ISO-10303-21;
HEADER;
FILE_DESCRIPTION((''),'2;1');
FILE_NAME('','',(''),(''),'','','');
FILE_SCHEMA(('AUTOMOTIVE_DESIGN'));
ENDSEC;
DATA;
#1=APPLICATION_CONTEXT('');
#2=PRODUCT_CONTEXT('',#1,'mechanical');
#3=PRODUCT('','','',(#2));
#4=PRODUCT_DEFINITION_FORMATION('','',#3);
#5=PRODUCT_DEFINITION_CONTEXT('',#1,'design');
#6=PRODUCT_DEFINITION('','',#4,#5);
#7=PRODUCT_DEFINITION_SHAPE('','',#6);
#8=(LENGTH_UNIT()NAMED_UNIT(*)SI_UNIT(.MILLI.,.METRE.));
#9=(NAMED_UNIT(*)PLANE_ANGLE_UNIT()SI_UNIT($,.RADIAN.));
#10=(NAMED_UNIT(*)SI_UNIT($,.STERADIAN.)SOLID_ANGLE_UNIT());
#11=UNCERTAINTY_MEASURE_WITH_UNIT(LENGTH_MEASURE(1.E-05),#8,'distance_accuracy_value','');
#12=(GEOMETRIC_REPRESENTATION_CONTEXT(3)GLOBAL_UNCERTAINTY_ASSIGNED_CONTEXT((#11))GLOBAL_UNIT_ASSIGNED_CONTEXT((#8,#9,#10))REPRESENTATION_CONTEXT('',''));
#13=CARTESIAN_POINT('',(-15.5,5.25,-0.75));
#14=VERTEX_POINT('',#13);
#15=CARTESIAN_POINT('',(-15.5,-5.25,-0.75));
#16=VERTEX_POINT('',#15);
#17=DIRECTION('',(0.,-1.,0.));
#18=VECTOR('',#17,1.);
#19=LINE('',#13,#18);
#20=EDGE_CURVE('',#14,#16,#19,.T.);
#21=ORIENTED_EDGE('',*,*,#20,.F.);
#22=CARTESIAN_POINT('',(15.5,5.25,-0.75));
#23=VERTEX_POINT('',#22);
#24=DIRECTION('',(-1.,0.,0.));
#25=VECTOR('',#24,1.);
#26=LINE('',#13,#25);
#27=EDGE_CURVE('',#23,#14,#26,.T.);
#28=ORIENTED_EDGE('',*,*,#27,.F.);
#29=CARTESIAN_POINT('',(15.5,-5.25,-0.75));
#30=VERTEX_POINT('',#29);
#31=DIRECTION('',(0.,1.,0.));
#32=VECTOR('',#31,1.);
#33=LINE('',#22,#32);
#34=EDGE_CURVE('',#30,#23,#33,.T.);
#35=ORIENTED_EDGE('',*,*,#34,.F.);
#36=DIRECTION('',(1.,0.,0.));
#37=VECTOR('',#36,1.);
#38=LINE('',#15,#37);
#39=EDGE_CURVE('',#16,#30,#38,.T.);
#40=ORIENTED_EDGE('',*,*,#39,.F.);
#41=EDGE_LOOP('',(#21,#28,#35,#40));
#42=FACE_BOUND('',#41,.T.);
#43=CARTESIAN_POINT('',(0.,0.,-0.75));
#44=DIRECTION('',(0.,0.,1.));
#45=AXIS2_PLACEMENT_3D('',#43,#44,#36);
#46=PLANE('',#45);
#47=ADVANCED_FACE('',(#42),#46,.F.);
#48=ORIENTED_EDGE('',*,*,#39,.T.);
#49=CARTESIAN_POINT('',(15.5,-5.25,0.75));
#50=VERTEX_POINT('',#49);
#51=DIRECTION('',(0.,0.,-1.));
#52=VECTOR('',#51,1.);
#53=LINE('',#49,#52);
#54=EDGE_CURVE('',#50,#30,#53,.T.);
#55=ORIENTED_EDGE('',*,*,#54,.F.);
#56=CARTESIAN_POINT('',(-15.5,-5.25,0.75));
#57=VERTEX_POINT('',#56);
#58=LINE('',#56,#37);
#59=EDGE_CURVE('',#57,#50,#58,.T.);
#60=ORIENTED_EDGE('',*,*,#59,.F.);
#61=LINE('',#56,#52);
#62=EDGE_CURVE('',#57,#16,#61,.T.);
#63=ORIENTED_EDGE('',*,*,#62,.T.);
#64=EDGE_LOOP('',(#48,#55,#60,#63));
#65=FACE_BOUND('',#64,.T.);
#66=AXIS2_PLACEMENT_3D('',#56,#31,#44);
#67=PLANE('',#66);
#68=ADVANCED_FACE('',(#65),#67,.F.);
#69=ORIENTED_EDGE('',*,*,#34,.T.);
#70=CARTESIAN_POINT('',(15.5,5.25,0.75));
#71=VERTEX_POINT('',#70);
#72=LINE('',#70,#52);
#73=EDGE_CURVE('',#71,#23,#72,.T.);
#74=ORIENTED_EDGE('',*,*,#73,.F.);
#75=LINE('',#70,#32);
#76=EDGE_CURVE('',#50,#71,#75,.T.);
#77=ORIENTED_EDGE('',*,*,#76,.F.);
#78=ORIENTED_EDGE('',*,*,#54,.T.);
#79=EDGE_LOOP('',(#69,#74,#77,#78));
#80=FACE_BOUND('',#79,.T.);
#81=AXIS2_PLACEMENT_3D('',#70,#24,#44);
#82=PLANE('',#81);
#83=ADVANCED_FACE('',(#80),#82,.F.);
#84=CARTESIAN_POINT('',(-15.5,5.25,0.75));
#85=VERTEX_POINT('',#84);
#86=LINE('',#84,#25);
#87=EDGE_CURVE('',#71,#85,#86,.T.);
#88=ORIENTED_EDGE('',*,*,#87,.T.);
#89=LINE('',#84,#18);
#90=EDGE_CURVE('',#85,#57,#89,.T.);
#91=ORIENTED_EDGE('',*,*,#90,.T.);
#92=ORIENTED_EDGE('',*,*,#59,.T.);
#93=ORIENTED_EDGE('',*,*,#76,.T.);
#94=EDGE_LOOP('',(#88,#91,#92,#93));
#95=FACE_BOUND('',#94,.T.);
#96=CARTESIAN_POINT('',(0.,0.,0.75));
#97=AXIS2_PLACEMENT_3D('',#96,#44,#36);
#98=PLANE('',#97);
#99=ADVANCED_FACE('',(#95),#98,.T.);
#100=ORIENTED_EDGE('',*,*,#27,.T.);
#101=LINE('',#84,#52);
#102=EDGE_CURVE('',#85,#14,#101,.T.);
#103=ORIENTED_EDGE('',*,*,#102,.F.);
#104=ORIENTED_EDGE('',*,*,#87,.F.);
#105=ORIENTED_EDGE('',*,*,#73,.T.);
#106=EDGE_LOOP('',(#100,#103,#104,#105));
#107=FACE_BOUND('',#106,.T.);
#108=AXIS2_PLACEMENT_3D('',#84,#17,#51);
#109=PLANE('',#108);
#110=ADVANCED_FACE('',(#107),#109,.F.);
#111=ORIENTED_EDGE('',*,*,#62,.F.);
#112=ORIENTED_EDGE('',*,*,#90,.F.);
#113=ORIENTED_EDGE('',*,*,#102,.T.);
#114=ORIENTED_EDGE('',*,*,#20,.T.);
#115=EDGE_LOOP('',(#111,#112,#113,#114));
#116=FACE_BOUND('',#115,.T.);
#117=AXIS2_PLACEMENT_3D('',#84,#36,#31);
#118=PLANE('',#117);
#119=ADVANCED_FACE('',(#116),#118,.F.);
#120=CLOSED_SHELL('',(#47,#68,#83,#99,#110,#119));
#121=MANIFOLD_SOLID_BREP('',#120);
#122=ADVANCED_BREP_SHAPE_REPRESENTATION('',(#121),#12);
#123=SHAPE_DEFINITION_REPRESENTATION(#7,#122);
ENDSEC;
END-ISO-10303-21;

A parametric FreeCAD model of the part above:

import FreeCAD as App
import Part
import Sketcher
from FreeCAD import Vector
Q = App.Units.Quantity

doc = App.newDocument("Part")
body = doc.addObject("PartDesign::Body", "Body")

# Sketch on XY plane
sketch1 = doc.addObject("Sketcher::SketchObject", "Sketch")
body.addObject(sketch1)
sketch1.AttachmentSupport = (doc.XY_Plane, [""])
sketch1.MapMode = "FlatFace"
sketch1.addGeometry([
    Part.LineSegment(Vector(-15.5, 5.25, 0), Vector(-15.5, -5.25, 0)),
    Part.LineSegment(Vector(-15.5, -5.25, 0), Vector(15.5, -5.25, 0)),
    Part.LineSegment(Vector(15.5, -5.25, 0), Vector(15.5, 5.25, 0)),
    Part.LineSegment(Vector(15.5, 5.25, 0), Vector(-15.5, 5.25, 0)),
], False)
sketch1.addConstraint([
    Sketcher.Constraint("Coincident", 0, 2, 1, 1),
    Sketcher.Constraint("Coincident", 1, 2, 2, 1),
    Sketcher.Constraint("Coincident", 2, 2, 3, 1),
    Sketcher.Constraint("Coincident", 3, 2, 0, 1),
    Sketcher.Constraint("Vertical", 0),
    Sketcher.Constraint("Horizontal", 1),
    Sketcher.Constraint("Vertical", 2),
    Sketcher.Constraint("Horizontal", 3),
    Sketcher.Constraint("Symmetric", 0, 2, 2, 2, -1, 1),
    Sketcher.Constraint("DistanceX", 1, 1, 1, 2, Q("31 mm")),
    Sketcher.Constraint("DistanceY", 0, 2, 0, 1, Q("10.5 mm")),
])
pad1 = doc.addObject("PartDesign::Pad", "Pad")
body.addObject(pad1)
pad1.Profile = sketch1
pad1.Length = 1.5
pad1.Midplane = True

doc.recompute()
